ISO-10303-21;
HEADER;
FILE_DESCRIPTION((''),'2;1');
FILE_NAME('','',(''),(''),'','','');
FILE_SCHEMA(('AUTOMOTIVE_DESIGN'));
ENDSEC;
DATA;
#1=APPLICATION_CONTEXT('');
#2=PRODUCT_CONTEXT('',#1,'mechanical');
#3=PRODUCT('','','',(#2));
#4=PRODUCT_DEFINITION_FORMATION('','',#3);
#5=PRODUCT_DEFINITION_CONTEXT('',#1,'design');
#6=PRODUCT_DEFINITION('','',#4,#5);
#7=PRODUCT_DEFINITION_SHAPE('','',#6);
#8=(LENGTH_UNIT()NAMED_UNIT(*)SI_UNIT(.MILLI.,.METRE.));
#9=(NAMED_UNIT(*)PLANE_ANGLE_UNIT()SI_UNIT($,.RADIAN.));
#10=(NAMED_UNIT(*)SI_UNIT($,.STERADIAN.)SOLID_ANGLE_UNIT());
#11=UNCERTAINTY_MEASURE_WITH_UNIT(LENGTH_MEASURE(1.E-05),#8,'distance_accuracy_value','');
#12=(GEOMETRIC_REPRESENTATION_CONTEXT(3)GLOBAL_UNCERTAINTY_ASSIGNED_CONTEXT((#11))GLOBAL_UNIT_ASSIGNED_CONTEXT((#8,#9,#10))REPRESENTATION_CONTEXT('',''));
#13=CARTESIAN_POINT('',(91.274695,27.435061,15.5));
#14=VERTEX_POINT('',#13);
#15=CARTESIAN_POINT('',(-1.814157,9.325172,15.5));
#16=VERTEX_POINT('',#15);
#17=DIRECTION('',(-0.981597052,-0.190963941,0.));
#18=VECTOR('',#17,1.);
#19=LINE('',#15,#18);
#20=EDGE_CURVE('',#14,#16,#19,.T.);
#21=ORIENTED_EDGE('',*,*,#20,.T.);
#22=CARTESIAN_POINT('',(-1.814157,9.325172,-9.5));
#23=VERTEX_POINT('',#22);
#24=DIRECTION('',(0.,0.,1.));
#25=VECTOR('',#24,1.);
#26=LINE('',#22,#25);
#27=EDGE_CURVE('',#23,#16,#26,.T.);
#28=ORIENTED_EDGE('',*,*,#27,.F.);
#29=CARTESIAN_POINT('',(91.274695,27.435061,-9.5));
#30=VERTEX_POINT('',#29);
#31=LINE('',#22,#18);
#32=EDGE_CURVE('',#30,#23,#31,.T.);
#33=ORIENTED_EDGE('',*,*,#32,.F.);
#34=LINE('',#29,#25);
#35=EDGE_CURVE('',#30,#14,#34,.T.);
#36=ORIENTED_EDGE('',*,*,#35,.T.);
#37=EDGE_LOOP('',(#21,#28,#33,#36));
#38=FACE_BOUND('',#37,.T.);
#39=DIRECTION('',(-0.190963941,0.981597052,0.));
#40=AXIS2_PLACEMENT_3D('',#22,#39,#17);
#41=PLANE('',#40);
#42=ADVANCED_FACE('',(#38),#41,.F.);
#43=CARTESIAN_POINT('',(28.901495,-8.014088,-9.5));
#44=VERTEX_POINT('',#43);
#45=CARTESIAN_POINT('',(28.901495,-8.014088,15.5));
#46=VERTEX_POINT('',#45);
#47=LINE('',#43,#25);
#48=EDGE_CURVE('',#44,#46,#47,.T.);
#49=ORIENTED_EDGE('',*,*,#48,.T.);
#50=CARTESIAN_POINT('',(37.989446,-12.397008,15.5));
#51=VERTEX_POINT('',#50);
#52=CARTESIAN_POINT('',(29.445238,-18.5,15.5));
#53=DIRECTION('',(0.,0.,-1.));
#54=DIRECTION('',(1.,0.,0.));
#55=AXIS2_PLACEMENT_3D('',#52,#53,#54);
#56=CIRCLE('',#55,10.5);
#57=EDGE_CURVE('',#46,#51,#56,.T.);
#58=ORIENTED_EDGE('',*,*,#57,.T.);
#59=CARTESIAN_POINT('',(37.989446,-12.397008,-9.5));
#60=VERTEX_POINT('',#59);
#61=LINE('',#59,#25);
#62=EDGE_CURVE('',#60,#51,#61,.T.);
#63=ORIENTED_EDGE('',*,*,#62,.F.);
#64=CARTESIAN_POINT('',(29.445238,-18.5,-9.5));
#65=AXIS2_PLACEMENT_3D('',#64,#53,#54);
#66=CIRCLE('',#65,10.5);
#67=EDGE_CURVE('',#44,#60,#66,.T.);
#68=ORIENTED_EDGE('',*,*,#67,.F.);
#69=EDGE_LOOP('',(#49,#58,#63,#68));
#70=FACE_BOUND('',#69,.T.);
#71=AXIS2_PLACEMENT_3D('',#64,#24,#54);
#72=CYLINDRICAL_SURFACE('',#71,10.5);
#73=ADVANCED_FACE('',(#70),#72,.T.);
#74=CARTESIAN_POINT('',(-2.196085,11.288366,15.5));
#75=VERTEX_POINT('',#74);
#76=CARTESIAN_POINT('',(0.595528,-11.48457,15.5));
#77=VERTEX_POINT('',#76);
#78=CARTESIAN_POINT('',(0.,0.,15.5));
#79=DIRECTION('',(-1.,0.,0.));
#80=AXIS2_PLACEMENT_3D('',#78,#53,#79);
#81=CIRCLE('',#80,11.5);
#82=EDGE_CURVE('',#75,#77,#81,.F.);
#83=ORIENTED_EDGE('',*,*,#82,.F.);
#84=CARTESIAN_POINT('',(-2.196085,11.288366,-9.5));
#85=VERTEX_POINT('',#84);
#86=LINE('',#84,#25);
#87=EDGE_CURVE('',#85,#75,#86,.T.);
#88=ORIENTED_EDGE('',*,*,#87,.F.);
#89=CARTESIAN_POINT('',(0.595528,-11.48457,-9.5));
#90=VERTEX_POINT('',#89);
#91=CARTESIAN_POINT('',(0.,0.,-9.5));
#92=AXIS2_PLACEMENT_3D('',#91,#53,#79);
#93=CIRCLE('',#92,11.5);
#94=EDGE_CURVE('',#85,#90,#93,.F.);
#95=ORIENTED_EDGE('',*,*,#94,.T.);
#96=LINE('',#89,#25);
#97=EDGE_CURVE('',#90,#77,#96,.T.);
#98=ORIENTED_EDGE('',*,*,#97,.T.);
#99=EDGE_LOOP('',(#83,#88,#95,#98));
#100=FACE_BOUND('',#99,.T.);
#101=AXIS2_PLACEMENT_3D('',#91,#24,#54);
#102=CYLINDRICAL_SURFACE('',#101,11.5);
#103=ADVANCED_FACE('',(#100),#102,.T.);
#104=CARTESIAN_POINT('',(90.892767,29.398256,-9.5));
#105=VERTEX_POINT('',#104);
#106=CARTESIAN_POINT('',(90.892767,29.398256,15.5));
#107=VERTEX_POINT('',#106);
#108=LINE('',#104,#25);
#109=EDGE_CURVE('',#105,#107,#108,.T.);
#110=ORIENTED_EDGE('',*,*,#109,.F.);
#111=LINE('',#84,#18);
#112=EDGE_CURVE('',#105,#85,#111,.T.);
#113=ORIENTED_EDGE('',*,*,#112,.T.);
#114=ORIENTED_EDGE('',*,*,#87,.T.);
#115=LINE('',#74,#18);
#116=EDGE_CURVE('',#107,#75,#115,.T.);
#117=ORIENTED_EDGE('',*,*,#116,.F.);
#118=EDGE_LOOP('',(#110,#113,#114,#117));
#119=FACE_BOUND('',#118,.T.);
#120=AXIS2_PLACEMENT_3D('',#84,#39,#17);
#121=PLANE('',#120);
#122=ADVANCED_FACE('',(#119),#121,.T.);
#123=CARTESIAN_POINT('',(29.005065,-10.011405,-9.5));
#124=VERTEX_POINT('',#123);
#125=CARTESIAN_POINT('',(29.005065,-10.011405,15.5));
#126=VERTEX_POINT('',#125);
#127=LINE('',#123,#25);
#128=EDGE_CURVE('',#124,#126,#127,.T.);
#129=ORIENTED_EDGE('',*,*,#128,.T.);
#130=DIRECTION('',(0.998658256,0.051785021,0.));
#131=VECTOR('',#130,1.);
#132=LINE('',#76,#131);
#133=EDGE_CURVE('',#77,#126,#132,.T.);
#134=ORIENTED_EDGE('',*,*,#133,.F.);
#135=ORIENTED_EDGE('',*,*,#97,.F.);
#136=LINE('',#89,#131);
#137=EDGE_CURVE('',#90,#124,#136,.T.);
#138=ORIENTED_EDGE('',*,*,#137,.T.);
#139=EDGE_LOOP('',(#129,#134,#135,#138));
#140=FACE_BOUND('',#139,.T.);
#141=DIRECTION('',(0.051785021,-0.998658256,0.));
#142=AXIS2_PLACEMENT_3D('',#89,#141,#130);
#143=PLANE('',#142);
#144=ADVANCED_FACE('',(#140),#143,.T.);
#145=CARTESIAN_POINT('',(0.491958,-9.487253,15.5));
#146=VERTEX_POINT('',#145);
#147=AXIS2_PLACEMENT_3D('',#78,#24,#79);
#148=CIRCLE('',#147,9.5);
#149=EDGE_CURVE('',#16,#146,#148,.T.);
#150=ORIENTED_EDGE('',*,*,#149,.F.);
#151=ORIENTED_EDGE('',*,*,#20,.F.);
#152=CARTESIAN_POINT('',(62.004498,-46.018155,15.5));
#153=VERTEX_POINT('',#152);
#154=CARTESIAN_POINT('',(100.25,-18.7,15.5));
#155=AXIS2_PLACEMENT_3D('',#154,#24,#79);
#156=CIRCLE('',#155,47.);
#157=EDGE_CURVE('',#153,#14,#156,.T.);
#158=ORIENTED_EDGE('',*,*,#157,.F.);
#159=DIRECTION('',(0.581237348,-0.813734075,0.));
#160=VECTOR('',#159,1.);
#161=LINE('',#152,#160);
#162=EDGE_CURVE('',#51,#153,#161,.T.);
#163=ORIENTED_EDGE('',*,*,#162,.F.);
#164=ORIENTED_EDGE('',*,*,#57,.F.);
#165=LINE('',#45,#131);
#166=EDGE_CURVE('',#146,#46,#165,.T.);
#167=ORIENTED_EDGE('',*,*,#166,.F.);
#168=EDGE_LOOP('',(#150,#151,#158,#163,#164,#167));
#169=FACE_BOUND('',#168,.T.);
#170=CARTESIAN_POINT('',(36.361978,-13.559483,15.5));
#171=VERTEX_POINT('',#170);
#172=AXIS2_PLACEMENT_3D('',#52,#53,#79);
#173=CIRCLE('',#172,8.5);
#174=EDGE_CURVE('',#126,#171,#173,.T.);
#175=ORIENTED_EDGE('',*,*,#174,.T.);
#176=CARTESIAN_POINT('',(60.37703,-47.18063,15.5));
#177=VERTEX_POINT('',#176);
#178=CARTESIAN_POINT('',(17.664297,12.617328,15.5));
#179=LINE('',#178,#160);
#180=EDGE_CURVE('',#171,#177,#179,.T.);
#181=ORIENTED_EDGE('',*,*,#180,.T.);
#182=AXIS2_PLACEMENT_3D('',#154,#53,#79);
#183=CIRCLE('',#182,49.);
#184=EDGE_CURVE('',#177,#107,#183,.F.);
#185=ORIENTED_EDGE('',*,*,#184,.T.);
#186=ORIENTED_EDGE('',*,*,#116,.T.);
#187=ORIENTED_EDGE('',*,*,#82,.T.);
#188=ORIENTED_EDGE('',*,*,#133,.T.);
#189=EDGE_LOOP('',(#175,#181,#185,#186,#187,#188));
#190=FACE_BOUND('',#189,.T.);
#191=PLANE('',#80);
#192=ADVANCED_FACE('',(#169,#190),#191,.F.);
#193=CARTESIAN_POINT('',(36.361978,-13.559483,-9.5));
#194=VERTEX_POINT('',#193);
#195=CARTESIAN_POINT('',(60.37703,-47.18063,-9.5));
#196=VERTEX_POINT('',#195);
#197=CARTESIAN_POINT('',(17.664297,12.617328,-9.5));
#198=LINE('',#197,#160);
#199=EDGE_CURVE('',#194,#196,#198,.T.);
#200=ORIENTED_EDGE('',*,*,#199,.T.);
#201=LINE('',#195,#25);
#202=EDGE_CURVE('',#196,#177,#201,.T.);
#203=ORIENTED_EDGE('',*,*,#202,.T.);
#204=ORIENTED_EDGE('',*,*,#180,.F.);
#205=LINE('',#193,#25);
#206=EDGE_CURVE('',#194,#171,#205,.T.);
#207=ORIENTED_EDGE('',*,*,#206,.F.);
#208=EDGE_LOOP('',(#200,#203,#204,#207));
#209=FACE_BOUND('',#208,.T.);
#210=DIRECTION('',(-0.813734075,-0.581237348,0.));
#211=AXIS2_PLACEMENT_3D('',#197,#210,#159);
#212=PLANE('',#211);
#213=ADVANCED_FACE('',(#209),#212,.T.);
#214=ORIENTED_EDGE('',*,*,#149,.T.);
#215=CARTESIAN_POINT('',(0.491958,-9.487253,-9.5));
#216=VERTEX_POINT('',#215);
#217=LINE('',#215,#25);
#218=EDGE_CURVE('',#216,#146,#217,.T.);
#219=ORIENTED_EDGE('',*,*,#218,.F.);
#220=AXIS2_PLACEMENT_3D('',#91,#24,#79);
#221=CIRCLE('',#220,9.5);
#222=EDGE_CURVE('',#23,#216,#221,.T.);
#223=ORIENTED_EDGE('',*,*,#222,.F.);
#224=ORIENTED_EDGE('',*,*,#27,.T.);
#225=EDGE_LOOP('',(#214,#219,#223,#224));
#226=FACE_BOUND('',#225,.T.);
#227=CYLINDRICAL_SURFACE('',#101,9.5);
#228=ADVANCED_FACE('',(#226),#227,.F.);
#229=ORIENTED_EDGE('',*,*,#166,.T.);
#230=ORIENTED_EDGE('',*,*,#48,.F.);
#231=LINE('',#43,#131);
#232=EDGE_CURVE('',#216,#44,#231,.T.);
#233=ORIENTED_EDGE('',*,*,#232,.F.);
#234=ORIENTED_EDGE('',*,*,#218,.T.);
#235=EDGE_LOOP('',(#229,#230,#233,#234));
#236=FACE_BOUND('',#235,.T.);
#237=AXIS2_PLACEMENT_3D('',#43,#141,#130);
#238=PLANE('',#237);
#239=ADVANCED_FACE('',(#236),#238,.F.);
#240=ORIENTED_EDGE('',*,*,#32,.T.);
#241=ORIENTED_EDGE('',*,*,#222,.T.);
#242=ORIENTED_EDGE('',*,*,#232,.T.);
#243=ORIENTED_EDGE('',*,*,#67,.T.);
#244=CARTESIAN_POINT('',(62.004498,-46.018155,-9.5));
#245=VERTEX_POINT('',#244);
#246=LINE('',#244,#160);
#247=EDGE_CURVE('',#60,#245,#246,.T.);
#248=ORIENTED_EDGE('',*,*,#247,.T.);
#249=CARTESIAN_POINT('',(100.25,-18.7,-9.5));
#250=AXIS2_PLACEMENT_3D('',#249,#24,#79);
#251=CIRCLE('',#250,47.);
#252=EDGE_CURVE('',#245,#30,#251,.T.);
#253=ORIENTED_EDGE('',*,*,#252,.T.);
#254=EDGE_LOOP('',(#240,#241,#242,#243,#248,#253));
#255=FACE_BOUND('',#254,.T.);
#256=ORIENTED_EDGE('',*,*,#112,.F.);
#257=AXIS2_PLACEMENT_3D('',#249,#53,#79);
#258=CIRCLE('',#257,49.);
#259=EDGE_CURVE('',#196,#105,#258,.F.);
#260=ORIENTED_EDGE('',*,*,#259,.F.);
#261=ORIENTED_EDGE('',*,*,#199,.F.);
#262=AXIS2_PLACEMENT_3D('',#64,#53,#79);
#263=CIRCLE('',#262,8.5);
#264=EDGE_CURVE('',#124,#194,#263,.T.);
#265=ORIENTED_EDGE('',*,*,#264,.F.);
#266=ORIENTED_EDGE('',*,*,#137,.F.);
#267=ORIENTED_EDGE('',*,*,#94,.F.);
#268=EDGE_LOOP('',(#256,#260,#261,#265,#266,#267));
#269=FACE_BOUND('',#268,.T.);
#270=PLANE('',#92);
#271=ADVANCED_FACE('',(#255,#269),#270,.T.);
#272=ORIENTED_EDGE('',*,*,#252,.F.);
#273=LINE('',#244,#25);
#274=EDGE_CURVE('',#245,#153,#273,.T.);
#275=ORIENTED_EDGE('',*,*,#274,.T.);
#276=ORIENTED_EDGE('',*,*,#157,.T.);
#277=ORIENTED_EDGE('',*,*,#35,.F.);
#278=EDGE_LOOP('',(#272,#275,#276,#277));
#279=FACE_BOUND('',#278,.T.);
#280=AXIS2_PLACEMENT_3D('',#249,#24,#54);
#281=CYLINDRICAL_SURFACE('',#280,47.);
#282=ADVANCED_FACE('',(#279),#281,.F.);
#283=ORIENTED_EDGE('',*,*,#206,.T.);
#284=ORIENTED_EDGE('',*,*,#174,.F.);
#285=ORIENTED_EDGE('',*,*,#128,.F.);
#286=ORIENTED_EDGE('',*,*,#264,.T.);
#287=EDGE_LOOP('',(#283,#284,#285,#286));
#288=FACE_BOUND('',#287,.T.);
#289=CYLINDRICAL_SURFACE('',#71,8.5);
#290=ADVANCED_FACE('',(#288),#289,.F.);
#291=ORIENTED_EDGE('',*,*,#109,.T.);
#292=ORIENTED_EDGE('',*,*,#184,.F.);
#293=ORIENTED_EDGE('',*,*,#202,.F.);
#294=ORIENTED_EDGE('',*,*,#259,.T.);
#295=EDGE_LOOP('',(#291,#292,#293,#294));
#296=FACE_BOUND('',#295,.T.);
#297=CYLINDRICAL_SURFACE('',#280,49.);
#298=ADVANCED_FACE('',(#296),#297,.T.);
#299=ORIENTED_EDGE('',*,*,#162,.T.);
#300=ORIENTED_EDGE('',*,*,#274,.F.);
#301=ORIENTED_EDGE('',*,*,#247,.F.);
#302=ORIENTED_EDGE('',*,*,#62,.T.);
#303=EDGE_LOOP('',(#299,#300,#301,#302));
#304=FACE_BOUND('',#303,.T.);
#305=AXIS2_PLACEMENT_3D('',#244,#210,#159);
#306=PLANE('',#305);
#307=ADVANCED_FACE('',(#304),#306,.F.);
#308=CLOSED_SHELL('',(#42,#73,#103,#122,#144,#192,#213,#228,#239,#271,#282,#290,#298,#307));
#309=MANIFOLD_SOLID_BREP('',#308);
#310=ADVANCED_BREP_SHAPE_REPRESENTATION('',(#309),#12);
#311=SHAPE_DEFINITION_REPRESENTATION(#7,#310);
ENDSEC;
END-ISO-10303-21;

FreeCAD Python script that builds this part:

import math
import FreeCAD as App
import Part
import Sketcher

V = App.Vector

doc = App.newDocument("Part")
body = doc.addObject("PartDesign::Body", "Body")

sketch1 = body.newObject("Sketcher::SketchObject", "Sketch")
sketch1.AttachmentSupport = (doc.getObject("XY_Plane"), [""])
sketch1.MapMode = "FlatFace"
sketch1.addGeometry([
    Part.LineSegment(V(1, -11, 0), V(29, -10, 0)),
    Part.ArcOfCircle(Part.Circle(V(29, -18, 0), V(0, 0, 1), 8), math.radians(36), math.radians(93)),
    Part.LineSegment(V(36, -14, 0), V(60, -47, 0)),
    Part.ArcOfCircle(Part.Circle(V(100, -19, 0), V(0, 0, 1), 49), math.radians(-144), math.radians(101)),
    Part.LineSegment(V(91, 29, 0), V(-2, 11, 0)),
    Part.ArcOfCircle(Part.Circle(V(0, 0, 0), V(0, 0, 1), 12), math.radians(101), math.radians(273)),
    Part.LineSegment(V(29, -8, 0), V(0, -9, 0)),
    Part.ArcOfCircle(Part.Circle(V(0, 0, 0), V(0, 0, 1), 10), math.radians(101), math.radians(273)),
    Part.LineSegment(V(-2, 9, 0), V(91, 27, 0)),
    Part.ArcOfCircle(Part.Circle(V(100, -19, 0), V(0, 0, 1), 47), math.radians(-144), math.radians(101)),
    Part.LineSegment(V(62, -46, 0), V(38, -12, 0)),
    Part.ArcOfCircle(Part.Circle(V(29, -19, 0), V(0, 0, 1), 11), math.radians(36), math.radians(93)),
], False)
sketch1.addConstraint([
    Sketcher.Constraint("Tangent", 0, 2, 1, 2),
    Sketcher.Constraint("Tangent", 1, 1, 2, 1),
    Sketcher.Constraint("Tangent", 2, 2, 3, 1),
    Sketcher.Constraint("Tangent", 3, 2, 4, 1),
    Sketcher.Constraint("Tangent", 4, 2, 5, 1),
    Sketcher.Constraint("Tangent", 5, 2, 0, 1),
    Sketcher.Constraint("Tangent", 6, 2, 7, 2),
    Sketcher.Constraint("Tangent", 7, 1, 8, 1),
    Sketcher.Constraint("Tangent", 8, 2, 9, 2),
    Sketcher.Constraint("Tangent", 9, 1, 10, 1),
    Sketcher.Constraint("Tangent", 10, 2, 11, 1),
    Sketcher.Constraint("Tangent", 11, 2, 6, 1),
    Sketcher.Constraint("Coincident", 5, 3, -1, 1),
    Sketcher.Constraint("Coincident", 7, 3, -1, 1),
    Sketcher.Constraint("Coincident", 9, 3, 3, 3),
    Sketcher.Constraint("Coincident", 11, 3, 1, 3),
    Sketcher.Constraint("Parallel", 0, 6),
    Sketcher.Constraint("Parallel", 4, 8),
    Sketcher.Constraint("Radius", 3, 49.0),
    Sketcher.Constraint("Radius", 9, 47.0),
    Sketcher.Constraint("Radius", 1, 8.5),
    Sketcher.Constraint("Radius", 5, 11.5),
    Sketcher.Constraint("DistanceY", 1, 3, -1, 1, 18.5),
    Sketcher.Constraint("DistanceY", 3, 3, -1, 1, 18.7),
    Sketcher.Constraint("DistanceX", -1, 1, 3, 3, 100.25),
    Sketcher.Constraint("DistanceX", -1, 1, 9, 1, 62.004498),
])
pad1 = body.newObject("PartDesign::Pad", "Pad")
pad1.Profile = sketch1
pad1.Type = "TwoLengths"
pad1.Length = 15.5
pad1.Length2 = 9.5

doc.recompute()
